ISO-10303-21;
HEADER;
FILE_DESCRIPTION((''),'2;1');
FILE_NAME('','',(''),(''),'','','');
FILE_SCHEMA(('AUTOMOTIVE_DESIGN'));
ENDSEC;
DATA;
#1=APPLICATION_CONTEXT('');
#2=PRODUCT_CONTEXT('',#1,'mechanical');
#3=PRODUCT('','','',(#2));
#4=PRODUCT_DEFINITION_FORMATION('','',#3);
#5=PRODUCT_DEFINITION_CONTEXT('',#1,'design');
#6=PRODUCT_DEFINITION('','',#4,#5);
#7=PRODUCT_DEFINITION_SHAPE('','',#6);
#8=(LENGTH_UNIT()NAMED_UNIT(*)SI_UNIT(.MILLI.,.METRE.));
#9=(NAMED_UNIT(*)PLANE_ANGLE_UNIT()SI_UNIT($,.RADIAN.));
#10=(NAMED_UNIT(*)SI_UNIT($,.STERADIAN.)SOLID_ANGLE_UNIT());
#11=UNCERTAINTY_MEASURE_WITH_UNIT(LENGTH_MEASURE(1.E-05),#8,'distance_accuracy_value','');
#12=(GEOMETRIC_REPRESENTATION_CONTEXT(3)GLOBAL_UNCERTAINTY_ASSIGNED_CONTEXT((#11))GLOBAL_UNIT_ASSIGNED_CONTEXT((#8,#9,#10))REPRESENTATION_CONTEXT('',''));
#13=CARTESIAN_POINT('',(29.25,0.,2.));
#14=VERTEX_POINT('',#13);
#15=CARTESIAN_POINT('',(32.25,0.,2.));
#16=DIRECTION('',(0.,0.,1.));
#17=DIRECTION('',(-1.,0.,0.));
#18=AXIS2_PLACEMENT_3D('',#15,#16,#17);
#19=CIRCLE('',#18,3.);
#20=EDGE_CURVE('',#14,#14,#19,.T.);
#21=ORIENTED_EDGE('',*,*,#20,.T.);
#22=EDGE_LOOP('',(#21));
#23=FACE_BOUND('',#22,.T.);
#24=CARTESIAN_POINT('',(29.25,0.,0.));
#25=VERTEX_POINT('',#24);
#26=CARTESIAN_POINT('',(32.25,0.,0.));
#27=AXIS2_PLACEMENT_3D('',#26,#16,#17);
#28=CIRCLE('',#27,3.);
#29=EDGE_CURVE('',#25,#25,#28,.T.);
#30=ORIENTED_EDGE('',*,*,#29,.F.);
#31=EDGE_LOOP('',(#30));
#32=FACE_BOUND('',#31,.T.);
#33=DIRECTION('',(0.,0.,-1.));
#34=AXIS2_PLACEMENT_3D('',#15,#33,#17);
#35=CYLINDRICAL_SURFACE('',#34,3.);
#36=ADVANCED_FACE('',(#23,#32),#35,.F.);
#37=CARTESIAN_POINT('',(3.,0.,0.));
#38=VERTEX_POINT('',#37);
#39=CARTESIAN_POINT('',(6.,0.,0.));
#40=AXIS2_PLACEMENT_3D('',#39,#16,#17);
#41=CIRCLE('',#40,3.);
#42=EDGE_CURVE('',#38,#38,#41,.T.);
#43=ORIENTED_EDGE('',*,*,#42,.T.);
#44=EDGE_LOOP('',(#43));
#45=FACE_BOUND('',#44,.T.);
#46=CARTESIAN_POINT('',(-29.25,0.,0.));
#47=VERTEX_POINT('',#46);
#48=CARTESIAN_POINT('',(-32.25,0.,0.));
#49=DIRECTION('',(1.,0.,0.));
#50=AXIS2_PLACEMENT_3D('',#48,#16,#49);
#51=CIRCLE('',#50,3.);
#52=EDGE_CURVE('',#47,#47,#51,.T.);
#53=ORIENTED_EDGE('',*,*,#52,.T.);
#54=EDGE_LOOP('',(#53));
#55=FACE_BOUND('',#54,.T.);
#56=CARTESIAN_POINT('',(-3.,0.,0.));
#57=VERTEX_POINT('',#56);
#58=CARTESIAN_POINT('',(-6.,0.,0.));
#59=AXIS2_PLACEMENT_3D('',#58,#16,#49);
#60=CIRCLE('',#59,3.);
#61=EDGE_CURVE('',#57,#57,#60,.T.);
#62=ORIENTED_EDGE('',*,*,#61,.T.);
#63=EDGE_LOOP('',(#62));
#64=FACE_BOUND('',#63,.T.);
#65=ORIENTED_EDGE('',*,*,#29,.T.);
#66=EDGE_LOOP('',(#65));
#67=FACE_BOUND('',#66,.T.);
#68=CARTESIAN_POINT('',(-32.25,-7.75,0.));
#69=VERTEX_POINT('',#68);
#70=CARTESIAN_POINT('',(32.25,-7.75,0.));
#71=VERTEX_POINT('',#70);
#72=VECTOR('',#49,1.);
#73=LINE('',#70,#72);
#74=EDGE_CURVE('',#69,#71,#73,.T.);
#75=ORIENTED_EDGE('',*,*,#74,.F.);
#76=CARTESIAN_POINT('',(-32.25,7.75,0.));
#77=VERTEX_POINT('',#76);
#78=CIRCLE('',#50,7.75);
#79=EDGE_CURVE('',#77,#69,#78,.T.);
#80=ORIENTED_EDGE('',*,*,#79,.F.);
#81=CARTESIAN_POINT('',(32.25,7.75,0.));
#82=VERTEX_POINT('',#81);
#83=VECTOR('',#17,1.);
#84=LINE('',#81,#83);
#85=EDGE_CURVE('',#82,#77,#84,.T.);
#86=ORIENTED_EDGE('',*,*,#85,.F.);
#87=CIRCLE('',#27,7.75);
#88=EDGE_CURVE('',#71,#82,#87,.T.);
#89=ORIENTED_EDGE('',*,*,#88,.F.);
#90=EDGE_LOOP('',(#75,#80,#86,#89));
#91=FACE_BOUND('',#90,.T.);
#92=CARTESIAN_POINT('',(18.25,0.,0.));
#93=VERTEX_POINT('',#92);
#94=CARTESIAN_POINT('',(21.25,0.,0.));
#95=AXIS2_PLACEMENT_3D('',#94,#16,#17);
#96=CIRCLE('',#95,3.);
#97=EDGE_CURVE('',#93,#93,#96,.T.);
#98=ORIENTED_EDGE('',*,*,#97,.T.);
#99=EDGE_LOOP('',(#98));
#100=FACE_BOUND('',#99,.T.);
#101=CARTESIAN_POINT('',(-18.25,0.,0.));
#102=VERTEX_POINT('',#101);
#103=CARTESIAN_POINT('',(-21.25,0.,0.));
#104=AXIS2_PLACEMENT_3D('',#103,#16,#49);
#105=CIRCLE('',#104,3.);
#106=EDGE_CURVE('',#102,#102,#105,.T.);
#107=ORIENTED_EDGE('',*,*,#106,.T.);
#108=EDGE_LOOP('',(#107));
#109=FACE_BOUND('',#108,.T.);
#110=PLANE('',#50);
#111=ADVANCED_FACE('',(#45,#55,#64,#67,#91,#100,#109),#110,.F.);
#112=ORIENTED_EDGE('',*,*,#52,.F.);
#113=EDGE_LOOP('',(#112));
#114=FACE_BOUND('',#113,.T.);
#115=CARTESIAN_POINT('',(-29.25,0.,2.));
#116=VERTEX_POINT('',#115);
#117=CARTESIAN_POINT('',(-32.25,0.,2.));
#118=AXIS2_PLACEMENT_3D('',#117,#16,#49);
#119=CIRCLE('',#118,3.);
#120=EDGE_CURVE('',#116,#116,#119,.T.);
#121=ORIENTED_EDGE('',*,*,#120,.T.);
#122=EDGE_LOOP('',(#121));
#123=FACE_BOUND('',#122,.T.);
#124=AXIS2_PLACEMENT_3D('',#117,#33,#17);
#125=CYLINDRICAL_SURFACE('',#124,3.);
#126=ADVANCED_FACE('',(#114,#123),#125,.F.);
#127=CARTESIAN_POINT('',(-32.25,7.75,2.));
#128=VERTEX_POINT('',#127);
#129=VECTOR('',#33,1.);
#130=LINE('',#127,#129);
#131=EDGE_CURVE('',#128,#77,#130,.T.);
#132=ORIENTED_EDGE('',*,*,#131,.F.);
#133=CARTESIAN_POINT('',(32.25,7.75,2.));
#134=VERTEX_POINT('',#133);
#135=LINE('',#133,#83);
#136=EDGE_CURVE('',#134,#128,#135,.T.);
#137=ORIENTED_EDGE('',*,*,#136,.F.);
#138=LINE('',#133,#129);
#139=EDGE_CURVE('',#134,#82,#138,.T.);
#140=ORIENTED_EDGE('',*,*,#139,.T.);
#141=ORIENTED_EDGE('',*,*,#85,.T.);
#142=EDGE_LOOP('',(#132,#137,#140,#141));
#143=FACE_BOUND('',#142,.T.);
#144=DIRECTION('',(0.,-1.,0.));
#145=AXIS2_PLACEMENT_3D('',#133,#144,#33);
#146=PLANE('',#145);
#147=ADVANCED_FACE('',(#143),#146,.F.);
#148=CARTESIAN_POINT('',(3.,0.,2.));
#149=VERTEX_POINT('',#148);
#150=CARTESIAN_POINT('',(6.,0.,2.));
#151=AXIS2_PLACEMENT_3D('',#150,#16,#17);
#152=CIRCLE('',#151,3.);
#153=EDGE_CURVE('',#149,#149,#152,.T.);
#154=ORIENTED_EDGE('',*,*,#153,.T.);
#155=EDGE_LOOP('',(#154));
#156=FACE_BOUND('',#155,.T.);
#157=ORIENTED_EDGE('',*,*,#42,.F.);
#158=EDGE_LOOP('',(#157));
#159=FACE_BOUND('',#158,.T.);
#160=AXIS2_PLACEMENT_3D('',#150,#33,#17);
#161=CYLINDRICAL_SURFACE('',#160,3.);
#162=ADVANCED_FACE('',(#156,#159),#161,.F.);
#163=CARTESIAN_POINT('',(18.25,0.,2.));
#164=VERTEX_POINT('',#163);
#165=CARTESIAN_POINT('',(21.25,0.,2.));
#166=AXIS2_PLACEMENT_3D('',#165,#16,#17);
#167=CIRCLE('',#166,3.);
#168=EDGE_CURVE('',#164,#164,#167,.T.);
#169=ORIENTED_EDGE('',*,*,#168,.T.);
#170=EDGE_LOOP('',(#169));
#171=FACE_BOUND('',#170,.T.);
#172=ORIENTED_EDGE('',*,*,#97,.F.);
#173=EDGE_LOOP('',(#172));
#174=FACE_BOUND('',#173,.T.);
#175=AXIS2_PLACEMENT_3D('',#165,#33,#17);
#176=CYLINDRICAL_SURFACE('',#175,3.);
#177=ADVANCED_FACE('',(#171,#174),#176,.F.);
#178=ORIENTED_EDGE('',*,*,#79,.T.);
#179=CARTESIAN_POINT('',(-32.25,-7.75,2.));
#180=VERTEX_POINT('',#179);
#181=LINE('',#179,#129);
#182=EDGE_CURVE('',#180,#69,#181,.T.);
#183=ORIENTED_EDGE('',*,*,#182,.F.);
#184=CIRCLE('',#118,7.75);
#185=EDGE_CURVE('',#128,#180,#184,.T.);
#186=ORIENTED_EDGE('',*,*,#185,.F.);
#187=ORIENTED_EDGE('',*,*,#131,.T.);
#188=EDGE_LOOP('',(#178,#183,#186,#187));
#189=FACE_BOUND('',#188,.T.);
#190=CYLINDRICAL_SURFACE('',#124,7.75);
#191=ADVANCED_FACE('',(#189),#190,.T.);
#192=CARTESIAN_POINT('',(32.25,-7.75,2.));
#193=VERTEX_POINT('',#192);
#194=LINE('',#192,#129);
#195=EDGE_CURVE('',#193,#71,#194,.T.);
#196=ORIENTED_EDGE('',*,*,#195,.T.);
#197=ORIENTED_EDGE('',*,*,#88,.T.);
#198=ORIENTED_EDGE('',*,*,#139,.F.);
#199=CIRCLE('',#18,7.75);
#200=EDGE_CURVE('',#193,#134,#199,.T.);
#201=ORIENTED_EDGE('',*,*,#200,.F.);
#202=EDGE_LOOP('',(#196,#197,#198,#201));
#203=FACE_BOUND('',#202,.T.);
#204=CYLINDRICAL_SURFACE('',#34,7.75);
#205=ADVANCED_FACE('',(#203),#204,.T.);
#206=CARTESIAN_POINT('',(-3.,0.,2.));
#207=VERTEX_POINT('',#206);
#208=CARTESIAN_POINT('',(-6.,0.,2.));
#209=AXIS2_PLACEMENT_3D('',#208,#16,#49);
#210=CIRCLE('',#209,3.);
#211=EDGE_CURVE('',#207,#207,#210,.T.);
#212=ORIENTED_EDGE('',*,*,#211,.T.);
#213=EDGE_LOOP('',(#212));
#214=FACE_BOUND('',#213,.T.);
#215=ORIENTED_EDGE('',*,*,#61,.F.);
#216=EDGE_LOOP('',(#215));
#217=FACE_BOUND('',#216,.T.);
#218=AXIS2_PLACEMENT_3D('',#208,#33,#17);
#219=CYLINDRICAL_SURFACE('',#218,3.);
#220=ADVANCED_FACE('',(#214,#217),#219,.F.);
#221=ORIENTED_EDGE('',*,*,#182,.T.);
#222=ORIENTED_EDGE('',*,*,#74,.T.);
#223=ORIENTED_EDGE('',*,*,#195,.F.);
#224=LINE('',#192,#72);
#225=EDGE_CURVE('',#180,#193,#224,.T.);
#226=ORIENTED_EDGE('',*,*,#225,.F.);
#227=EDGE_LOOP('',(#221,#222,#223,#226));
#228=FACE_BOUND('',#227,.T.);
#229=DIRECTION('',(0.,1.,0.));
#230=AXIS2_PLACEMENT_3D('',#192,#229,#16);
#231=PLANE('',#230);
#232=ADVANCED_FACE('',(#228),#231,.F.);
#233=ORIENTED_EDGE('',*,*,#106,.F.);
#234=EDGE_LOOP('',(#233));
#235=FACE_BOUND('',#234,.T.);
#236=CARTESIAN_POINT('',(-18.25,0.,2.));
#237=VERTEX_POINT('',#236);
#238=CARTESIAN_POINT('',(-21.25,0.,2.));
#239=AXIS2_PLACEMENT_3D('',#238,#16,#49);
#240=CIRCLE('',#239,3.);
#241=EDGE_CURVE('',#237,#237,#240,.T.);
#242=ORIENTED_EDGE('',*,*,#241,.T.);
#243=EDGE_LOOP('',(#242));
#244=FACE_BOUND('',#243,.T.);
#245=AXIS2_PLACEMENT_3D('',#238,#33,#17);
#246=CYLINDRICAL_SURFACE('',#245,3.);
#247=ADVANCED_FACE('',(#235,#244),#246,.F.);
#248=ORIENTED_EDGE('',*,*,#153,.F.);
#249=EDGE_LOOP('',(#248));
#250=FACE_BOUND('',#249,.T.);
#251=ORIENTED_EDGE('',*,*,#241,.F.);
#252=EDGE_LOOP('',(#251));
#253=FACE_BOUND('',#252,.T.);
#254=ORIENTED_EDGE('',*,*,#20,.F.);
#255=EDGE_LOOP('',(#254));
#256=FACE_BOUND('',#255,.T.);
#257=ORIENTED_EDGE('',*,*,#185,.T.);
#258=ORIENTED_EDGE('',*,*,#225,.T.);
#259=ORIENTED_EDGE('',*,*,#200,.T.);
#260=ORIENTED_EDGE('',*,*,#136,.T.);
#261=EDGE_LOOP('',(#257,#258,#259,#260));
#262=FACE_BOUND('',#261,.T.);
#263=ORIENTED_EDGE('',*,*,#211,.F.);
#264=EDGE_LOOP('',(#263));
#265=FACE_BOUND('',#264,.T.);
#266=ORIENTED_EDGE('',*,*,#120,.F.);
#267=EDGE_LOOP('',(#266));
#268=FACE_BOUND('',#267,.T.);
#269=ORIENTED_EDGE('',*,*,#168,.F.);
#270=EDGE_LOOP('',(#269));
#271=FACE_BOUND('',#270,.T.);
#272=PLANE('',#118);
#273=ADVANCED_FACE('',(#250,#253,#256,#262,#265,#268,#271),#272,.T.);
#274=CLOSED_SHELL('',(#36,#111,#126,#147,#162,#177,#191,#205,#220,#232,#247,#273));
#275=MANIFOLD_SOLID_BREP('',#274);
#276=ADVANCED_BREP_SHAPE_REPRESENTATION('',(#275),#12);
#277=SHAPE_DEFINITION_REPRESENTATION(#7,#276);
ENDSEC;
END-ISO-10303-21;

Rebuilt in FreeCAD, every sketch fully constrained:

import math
import FreeCAD as App
import Part
import Sketcher

V = App.Vector
Q = App.Units.Quantity

doc = App.newDocument("Part")
params = doc.addObject("Spreadsheet::Sheet", "Params")
for row, (alias, value) in enumerate([
    ("sketch1_diameter", "6 mm"),
    ("sketch1_radius", "7.75 mm"),
    ("sketch1_width", "64.5 mm"),
    ("pad1_length", "2 mm"),
], start=1):
    params.set(f"A{row}", alias)
    params.set(f"B{row}", "=" + value)
    params.setAlias(f"B{row}", alias)

body = doc.addObject("PartDesign::Body", "Body")

# Sketch on XY plane
sketch1 = body.newObject("Sketcher::SketchObject", "Sketch")
sketch1.AttachmentSupport = (doc.getObject("XY_Plane"), [""])
sketch1.MapMode = "FlatFace"
sketch1.addGeometry([
    Part.LineSegment(V(32.2, 7.8, 0), V(-32.2, 7.8, 0)),  # 0
    Part.ArcOfCircle(Part.Circle(V(-32.2, 0, 0), V(0, 0, 1), 7.8), math.radians(90), math.radians(270)),  # 1
    Part.LineSegment(V(-32.2, -7.8, 0), V(32.2, -7.8, 0)),  # 2
    Part.ArcOfCircle(Part.Circle(V(32.2, 0, 0), V(0, 0, 1), 7.8), math.radians(-90), math.radians(90)),  # 3
    Part.Circle(V(-32.2, 0, 0), V(0, 0, 1), 3),  # 4
    Part.Circle(V(-21.2, 0, 0), V(0, 0, 1), 3),  # 5
    Part.Circle(V(-6, 0, 0), V(0, 0, 1), 3),  # 6
    Part.Circle(V(6, 0, 0), V(0, 0, 1), 3),  # 7
    Part.Circle(V(21.2, 0, 0), V(0, 0, 1), 3),  # 8
    Part.Circle(V(32.2, 0, 0), V(0, 0, 1), 3),  # 9
], False)
sketch1.addConstraint([
    Sketcher.Constraint("Tangent", 0, 2, 1, 1),
    Sketcher.Constraint("Tangent", 1, 2, 2, 1),
    Sketcher.Constraint("Tangent", 2, 2, 3, 1),
    Sketcher.Constraint("Tangent", 3, 2, 0, 1),
    Sketcher.Constraint("Horizontal", 0),
    Sketcher.Constraint("Horizontal", 2),
    Sketcher.Constraint("Coincident", 4, 3, 1, 3),
    Sketcher.Constraint("Coincident", 9, 3, 3, 3),
    Sketcher.Constraint("Equal", 4, 5),
    Sketcher.Constraint("Equal", 5, 6),
    Sketcher.Constraint("Equal", 6, 7),
    Sketcher.Constraint("Equal", 7, 8),
    Sketcher.Constraint("Equal", 8, 9),
    Sketcher.Constraint("Symmetric", 1, 3, 3, 3, -1, 1),
    Sketcher.Constraint("Symmetric", 6, 3, 7, 3, -1, 1),
    Sketcher.Constraint("Symmetric", 5, 3, 8, 3, -1, 1),
    Sketcher.Constraint("PointOnObject", 5, 3, -1),
    Sketcher.Constraint("PointOnObject", 6, 3, -1),
    Sketcher.Constraint("Diameter", 4, Q("6 mm")),
    Sketcher.Constraint("Radius", 1, Q("7.75 mm")),
    Sketcher.Constraint("DistanceX", 0, 2, 0, 1, Q("64.5 mm")),
    Sketcher.Constraint("DistanceX", 6, 3, -1, 1, Q("6 mm")),
    Sketcher.Constraint("DistanceX", 1, 3, 5, 3, Q("11 mm")),
])
sketch1.setExpression("Constraints[18]", "Params.sketch1_diameter")
sketch1.setExpression("Constraints[19]", "Params.sketch1_radius")
sketch1.setExpression("Constraints[20]", "Params.sketch1_width")
pad1 = body.newObject("PartDesign::Pad", "Pad")
pad1.Profile = sketch1
pad1.setExpression("Length", "Params.pad1_length")

doc.recompute()
